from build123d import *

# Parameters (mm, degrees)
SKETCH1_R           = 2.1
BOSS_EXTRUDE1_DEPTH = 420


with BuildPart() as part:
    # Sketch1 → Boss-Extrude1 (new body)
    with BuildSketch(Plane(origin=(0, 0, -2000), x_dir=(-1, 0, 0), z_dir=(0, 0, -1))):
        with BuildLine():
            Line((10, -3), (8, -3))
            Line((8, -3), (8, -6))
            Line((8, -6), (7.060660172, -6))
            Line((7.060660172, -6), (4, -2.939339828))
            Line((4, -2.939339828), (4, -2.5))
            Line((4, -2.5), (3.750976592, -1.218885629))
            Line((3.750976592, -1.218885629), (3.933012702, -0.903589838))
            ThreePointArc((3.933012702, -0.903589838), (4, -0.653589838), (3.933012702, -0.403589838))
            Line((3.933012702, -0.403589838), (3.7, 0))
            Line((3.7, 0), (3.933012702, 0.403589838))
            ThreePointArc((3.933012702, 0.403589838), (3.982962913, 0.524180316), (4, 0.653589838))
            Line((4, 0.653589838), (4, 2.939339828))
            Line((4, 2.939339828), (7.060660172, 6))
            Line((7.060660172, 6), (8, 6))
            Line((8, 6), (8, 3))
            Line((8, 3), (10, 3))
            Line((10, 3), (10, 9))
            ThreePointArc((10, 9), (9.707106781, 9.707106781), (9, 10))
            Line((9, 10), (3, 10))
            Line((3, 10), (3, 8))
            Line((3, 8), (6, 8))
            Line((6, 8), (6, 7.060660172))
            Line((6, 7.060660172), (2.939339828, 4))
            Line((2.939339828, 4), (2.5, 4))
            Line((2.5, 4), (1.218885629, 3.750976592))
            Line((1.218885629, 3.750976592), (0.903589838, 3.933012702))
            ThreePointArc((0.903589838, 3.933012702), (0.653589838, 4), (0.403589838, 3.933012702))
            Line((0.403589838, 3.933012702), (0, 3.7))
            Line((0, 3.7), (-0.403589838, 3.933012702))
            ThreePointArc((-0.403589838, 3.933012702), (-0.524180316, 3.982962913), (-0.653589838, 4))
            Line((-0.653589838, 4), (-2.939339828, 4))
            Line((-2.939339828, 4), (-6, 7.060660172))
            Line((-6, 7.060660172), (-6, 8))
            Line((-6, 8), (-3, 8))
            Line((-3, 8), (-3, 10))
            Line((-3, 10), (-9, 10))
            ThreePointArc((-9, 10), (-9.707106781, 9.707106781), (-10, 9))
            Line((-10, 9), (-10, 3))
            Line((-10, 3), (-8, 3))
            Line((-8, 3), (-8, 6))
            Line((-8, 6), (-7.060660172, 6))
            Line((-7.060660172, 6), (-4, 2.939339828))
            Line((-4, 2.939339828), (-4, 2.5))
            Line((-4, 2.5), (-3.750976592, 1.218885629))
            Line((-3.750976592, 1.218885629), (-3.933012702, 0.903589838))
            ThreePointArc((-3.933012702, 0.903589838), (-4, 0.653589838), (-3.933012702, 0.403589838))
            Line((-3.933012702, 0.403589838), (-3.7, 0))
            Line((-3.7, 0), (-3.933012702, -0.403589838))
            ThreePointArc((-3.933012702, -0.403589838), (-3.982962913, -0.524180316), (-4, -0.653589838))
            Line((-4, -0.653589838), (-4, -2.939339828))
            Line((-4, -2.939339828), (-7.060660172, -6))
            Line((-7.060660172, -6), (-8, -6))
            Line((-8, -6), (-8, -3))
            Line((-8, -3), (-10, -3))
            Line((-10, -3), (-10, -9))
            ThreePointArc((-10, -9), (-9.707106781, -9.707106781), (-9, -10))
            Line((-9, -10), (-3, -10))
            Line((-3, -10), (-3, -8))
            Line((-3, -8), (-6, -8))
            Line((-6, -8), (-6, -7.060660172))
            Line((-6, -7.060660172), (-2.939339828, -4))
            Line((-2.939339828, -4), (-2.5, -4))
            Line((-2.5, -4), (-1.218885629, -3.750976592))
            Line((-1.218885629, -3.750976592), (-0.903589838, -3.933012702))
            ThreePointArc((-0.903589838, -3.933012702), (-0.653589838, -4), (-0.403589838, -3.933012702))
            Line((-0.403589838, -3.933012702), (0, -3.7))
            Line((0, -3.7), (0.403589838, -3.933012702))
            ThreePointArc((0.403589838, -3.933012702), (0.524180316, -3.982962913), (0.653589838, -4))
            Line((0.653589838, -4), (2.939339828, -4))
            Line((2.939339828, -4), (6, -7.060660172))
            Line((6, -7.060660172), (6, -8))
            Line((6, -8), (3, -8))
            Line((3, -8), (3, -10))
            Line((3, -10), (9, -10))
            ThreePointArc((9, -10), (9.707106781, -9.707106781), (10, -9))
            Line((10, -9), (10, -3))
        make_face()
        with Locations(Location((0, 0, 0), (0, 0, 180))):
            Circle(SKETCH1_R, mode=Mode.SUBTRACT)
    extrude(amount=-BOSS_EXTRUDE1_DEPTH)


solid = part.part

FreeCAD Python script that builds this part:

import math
import FreeCAD as App
import Part
import Sketcher
from FreeCAD import Vector
Q = App.Units.Quantity

doc = App.newDocument("Part")
body = doc.addObject("PartDesign::Body", "Body")

# Sketch on XY plane
sketch1 = body.newObject("Sketcher::SketchObject", "Sketch")
sketch1.AttachmentSupport = (doc.getObject("XY_Plane"), [""])
sketch1.MapMode = "FlatFace"
sketch1.AttachmentOffset = App.Placement(Vector(0, 0, -2000), App.Rotation())
sketch1.addGeometry(Part.LineSegment(Vector(-10, -3, 0), Vector(-8, -3, 0)), False)
sketch1.addGeometry(Part.LineSegment(Vector(-8, -3, 0), Vector(-8, -6, 0)), False)
sketch1.addGeometry(Part.LineSegment(Vector(-8, -6, 0), Vector(-7.06, -6, 0)), False)
sketch1.addGeometry(Part.LineSegment(Vector(-7.06, -6, 0), Vector(-4, -2.94, 0)), False)
sketch1.addGeometry(Part.LineSegment(Vector(-4, -2.94, 0), Vector(-4, -2.5, 0)), False)
sketch1.addGeometry(Part.LineSegment(Vector(-4, -2.5, 0), Vector(-3.75, -1.22, 0)), False)
sketch1.addGeometry(Part.LineSegment(Vector(-3.75, -1.22, 0), Vector(-3.93, -0.9, 0)), False)
sketch1.addGeometry(Part.ArcOfCircle(Part.Circle(Vector(-3.5, -0.65, 0), Vector(0, 0, 1), 0.5), math.radians(150), math.radians(210)), False)
sketch1.addGeometry(Part.LineSegment(Vector(-3.93, -0.4, 0), Vector(-3.7, 0, 0)), False)
sketch1.addGeometry(Part.LineSegment(Vector(-3.7, 0, 0), Vector(-3.93, 0.4, 0)), False)
sketch1.addGeometry(Part.ArcOfCircle(Part.Circle(Vector(-3.5, 0.65, 0), Vector(0, 0, 1), 0.5), math.radians(-180), math.radians(-150)), False)
sketch1.addGeometry(Part.LineSegment(Vector(-4, 0.65, 0), Vector(-4, 2.94, 0)), False)
sketch1.addGeometry(Part.LineSegment(Vector(-4, 2.94, 0), Vector(-7.06, 6, 0)), False)
sketch1.addGeometry(Part.LineSegment(Vector(-7.06, 6, 0), Vector(-8, 6, 0)), False)
sketch1.addGeometry(Part.LineSegment(Vector(-8, 6, 0), Vector(-8, 3, 0)), False)
sketch1.addGeometry(Part.LineSegment(Vector(-8, 3, 0), Vector(-10, 3, 0)), False)
sketch1.addGeometry(Part.LineSegment(Vector(-10, 3, 0), Vector(-10, 9, 0)), False)
sketch1.addGeometry(Part.ArcOfCircle(Part.Circle(Vector(-9, 9, 0), Vector(0, 0, 1), 1), math.radians(90), math.radians(180)), False)
sketch1.addGeometry(Part.LineSegment(Vector(-9, 10, 0), Vector(-3, 10, 0)), False)
sketch1.addGeometry(Part.LineSegment(Vector(-3, 10, 0), Vector(-3, 8, 0)), False)
sketch1.addGeometry(Part.LineSegment(Vector(-3, 8, 0), Vector(-6, 8, 0)), False)
sketch1.addGeometry(Part.LineSegment(Vector(-6, 8, 0), Vector(-6, 7.06, 0)), False)
sketch1.addGeometry(Part.LineSegment(Vector(-6, 7.06, 0), Vector(-2.94, 4, 0)), False)
sketch1.addGeometry(Part.LineSegment(Vector(-2.94, 4, 0), Vector(-2.5, 4, 0)), False)
sketch1.addGeometry(Part.LineSegment(Vector(-2.5, 4, 0), Vector(-1.22, 3.75, 0)), False)
sketch1.addGeometry(Part.LineSegment(Vector(-1.22, 3.75, 0), Vector(-0.9, 3.93, 0)), False)
sketch1.addGeometry(Part.ArcOfCircle(Part.Circle(Vector(-0.65, 3.5, 0), Vector(0, 0, 1), 0.5), math.radians(60), math.radians(120)), False)
sketch1.addGeometry(Part.LineSegment(Vector(-0.4, 3.93, 0), Vector(0, 3.7, 0)), False)
sketch1.addGeometry(Part.LineSegment(Vector(0, 3.7, 0), Vector(0.4, 3.93, 0)), False)
sketch1.addGeometry(Part.ArcOfCircle(Part.Circle(Vector(0.65, 3.5, 0), Vector(0, 0, 1), 0.5), math.radians(90), math.radians(120)), False)
sketch1.addGeometry(Part.LineSegment(Vector(0.65, 4, 0), Vector(2.94, 4, 0)), False)
sketch1.addGeometry(Part.LineSegment(Vector(2.94, 4, 0), Vector(6, 7.06, 0)), False)
sketch1.addGeometry(Part.LineSegment(Vector(6, 7.06, 0), Vector(6, 8, 0)), False)
sketch1.addGeometry(Part.LineSegment(Vector(6, 8, 0), Vector(3, 8, 0)), False)
sketch1.addGeometry(Part.LineSegment(Vector(3, 8, 0), Vector(3, 10, 0)), False)
sketch1.addGeometry(Part.LineSegment(Vector(3, 10, 0), Vector(9, 10, 0)), False)
sketch1.addGeometry(Part.ArcOfCircle(Part.Circle(Vector(9, 9, 0), Vector(0, 0, 1), 1), math.radians(0), math.radians(90)), False)
sketch1.addGeometry(Part.LineSegment(Vector(10, 9, 0), Vector(10, 3, 0)), False)
sketch1.addGeometry(Part.LineSegment(Vector(10, 3, 0), Vector(8, 3, 0)), False)
sketch1.addGeometry(Part.LineSegment(Vector(8, 3, 0), Vector(8, 6, 0)), False)
sketch1.addGeometry(Part.LineSegment(Vector(8, 6, 0), Vector(7.06, 6, 0)), False)
sketch1.addGeometry(Part.LineSegment(Vector(7.06, 6, 0), Vector(4, 2.94, 0)), False)
sketch1.addGeometry(Part.LineSegment(Vector(4, 2.94, 0), Vector(4, 2.5, 0)), False)
sketch1.addGeometry(Part.LineSegment(Vector(4, 2.5, 0), Vector(3.75, 1.22, 0)), False)
sketch1.addGeometry(Part.LineSegment(Vector(3.75, 1.22, 0), Vector(3.93, 0.9, 0)), False)
sketch1.addGeometry(Part.ArcOfCircle(Part.Circle(Vector(3.5, 0.65, 0), Vector(0, 0, 1), 0.5), math.radians(-30), math.radians(30)), False)
sketch1.addGeometry(Part.LineSegment(Vector(3.93, 0.4, 0), Vector(3.7, 0, 0)), False)
sketch1.addGeometry(Part.LineSegment(Vector(3.7, 0, 0), Vector(3.93, -0.4, 0)), False)
sketch1.addGeometry(Part.ArcOfCircle(Part.Circle(Vector(3.5, -0.65, 0), Vector(0, 0, 1), 0.5), math.radians(0), math.radians(30)), False)
sketch1.addGeometry(Part.LineSegment(Vector(4, -0.65, 0), Vector(4, -2.94, 0)), False)
sketch1.addGeometry(Part.LineSegment(Vector(4, -2.94, 0), Vector(7.06, -6, 0)), False)
sketch1.addGeometry(Part.LineSegment(Vector(7.06, -6, 0), Vector(8, -6, 0)), False)
sketch1.addGeometry(Part.LineSegment(Vector(8, -6, 0), Vector(8, -3, 0)), False)
sketch1.addGeometry(Part.LineSegment(Vector(8, -3, 0), Vector(10, -3, 0)), False)
sketch1.addGeometry(Part.LineSegment(Vector(10, -3, 0), Vector(10, -9, 0)), False)
sketch1.addGeometry(Part.ArcOfCircle(Part.Circle(Vector(9, -9, 0), Vector(0, 0, 1), 1), math.radians(-90), math.radians(0)), False)
sketch1.addGeometry(Part.LineSegment(Vector(9, -10, 0), Vector(3, -10, 0)), False)
sketch1.addGeometry(Part.LineSegment(Vector(3, -10, 0), Vector(3, -8, 0)), False)
sketch1.addGeometry(Part.LineSegment(Vector(3, -8, 0), Vector(6, -8, 0)), False)
sketch1.addGeometry(Part.LineSegment(Vector(6, -8, 0), Vector(6, -7.06, 0)), False)
sketch1.addGeometry(Part.LineSegment(Vector(6, -7.06, 0), Vector(2.94, -4, 0)), False)
sketch1.addGeometry(Part.LineSegment(Vector(2.94, -4, 0), Vector(2.5, -4, 0)), False)
sketch1.addGeometry(Part.LineSegment(Vector(2.5, -4, 0), Vector(1.22, -3.75, 0)), False)
sketch1.addGeometry(Part.LineSegment(Vector(1.22, -3.75, 0), Vector(0.9, -3.93, 0)), False)
sketch1.addGeometry(Part.ArcOfCircle(Part.Circle(Vector(0.65, -3.5, 0), Vector(0, 0, 1), 0.5), math.radians(-120), math.radians(-60)), False)
sketch1.addGeometry(Part.LineSegment(Vector(0.4, -3.93, 0), Vector(0, -3.7, 0)), False)
sketch1.addGeometry(Part.LineSegment(Vector(0, -3.7, 0), Vector(-0.4, -3.93, 0)), False)
sketch1.addGeometry(Part.ArcOfCircle(Part.Circle(Vector(-0.65, -3.5, 0), Vector(0, 0, 1), 0.5), math.radians(-90), math.radians(-60)), False)
sketch1.addGeometry(Part.LineSegment(Vector(-0.65, -4, 0), Vector(-2.94, -4, 0)), False)
sketch1.addGeometry(Part.LineSegment(Vector(-2.94, -4, 0), Vector(-6, -7.06, 0)), False)
sketch1.addGeometry(Part.LineSegment(Vector(-6, -7.06, 0), Vector(-6, -8, 0)), False)
sketch1.addGeometry(Part.LineSegment(Vector(-6, -8, 0), Vector(-3, -8, 0)), False)
sketch1.addGeometry(Part.LineSegment(Vector(-3, -8, 0), Vector(-3, -10, 0)), False)
sketch1.addGeometry(Part.LineSegment(Vector(-3, -10, 0), Vector(-9, -10, 0)), False)
sketch1.addGeometry(Part.ArcOfCircle(Part.Circle(Vector(-9, -9, 0), Vector(0, 0, 1), 1), math.radians(-180), math.radians(-90)), False)
sketch1.addGeometry(Part.LineSegment(Vector(-10, -9, 0), Vector(-10, -3, 0)), False)
sketch1.addGeometry(Part.Circle(Vector(0, 0, 0), Vector(0, 0, 1), 2.1), False)
sketch1.addConstraint(Sketcher.Constraint("Coincident", 0, 2, 1, 1))
sketch1.addConstraint(Sketcher.Constraint("Coincident", 1, 2, 2, 1))
sketch1.addConstraint(Sketcher.Constraint("Coincident", 2, 2, 3, 1))
sketch1.addConstraint(Sketcher.Constraint("Coincident", 3, 2, 4, 1))
sketch1.addConstraint(Sketcher.Constraint("Coincident", 4, 2, 5, 1))
sketch1.addConstraint(Sketcher.Constraint("Coincident", 5, 2, 6, 1))
sketch1.addConstraint(Sketcher.Constraint("Tangent", 6, 2, 7, 2))
sketch1.addConstraint(Sketcher.Constraint("Tangent", 7, 1, 8, 1))
sketch1.addConstraint(Sketcher.Constraint("Coincident", 8, 2, 9, 1))
sketch1.addConstraint(Sketcher.Constraint("Tangent", 9, 2, 10, 2))
sketch1.addConstraint(Sketcher.Constraint("Tangent", 10, 1, 11, 1))
sketch1.addConstraint(Sketcher.Constraint("Coincident", 11, 2, 12, 1))
sketch1.addConstraint(Sketcher.Constraint("Coincident", 12, 2, 13, 1))
sketch1.addConstraint(Sketcher.Constraint("Coincident", 13, 2, 14, 1))
sketch1.addConstraint(Sketcher.Constraint("Coincident", 14, 2, 15, 1))
sketch1.addConstraint(Sketcher.Constraint("Coincident", 15, 2, 16, 1))
sketch1.addConstraint(Sketcher.Constraint("Tangent", 16, 2, 17, 2))
sketch1.addConstraint(Sketcher.Constraint("Tangent", 17, 1, 18, 1))
sketch1.addConstraint(Sketcher.Constraint("Coincident", 18, 2, 19, 1))
sketch1.addConstraint(Sketcher.Constraint("Coincident", 19, 2, 20, 1))
sketch1.addConstraint(Sketcher.Constraint("Coincident", 20, 2, 21, 1))
sketch1.addConstraint(Sketcher.Constraint("Coincident", 21, 2, 22, 1))
sketch1.addConstraint(Sketcher.Constraint("Coincident", 22, 2, 23, 1))
sketch1.addConstraint(Sketcher.Constraint("Coincident", 23, 2, 24, 1))
sketch1.addConstraint(Sketcher.Constraint("Coincident", 24, 2, 25, 1))
sketch1.addConstraint(Sketcher.Constraint("Tangent", 25, 2, 26, 2))
sketch1.addConstraint(Sketcher.Constraint("Tangent", 26, 1, 27, 1))
sketch1.addConstraint(Sketcher.Constraint("Coincident", 27, 2, 28, 1))
sketch1.addConstraint(Sketcher.Constraint("Tangent", 28, 2, 29, 2))
sketch1.addConstraint(Sketcher.Constraint("Tangent", 29, 1, 30, 1))
sketch1.addConstraint(Sketcher.Constraint("Coincident", 30, 2, 31, 1))
sketch1.addConstraint(Sketcher.Constraint("Coincident", 31, 2, 32, 1))
sketch1.addConstraint(Sketcher.Constraint("Coincident", 32, 2, 33, 1))
sketch1.addConstraint(Sketcher.Constraint("Coincident", 33, 2, 34, 1))
sketch1.addConstraint(Sketcher.Constraint("Coincident", 34, 2, 35, 1))
sketch1.addConstraint(Sketcher.Constraint("Tangent", 35, 2, 36, 2))
sketch1.addConstraint(Sketcher.Constraint("Tangent", 36, 1, 37, 1))
sketch1.addConstraint(Sketcher.Constraint("Coincident", 37, 2, 38, 1))
sketch1.addConstraint(Sketcher.Constraint("Coincident", 38, 2, 39, 1))
sketch1.addConstraint(Sketcher.Constraint("Coincident", 39, 2, 40, 1))
sketch1.addConstraint(Sketcher.Constraint("Coincident", 40, 2, 41, 1))
sketch1.addConstraint(Sketcher.Constraint("Coincident", 41, 2, 42, 1))
sketch1.addConstraint(Sketcher.Constraint("Coincident", 42, 2, 43, 1))
sketch1.addConstraint(Sketcher.Constraint("Coincident", 43, 2, 44, 1))
sketch1.addConstraint(Sketcher.Constraint("Tangent", 44, 2, 45, 2))
sketch1.addConstraint(Sketcher.Constraint("Tangent", 45, 1, 46, 1))
sketch1.addConstraint(Sketcher.Constraint("Coincident", 46, 2, 47, 1))
sketch1.addConstraint(Sketcher.Constraint("Tangent", 47, 2, 48, 2))
sketch1.addConstraint(Sketcher.Constraint("Tangent", 48, 1, 49, 1))
sketch1.addConstraint(Sketcher.Constraint("Coincident", 49, 2, 50, 1))
sketch1.addConstraint(Sketcher.Constraint("Coincident", 50, 2, 51, 1))
sketch1.addConstraint(Sketcher.Constraint("Coincident", 51, 2, 52, 1))
sketch1.addConstraint(Sketcher.Constraint("Coincident", 52, 2, 53, 1))
sketch1.addConstraint(Sketcher.Constraint("Coincident", 53, 2, 54, 1))
sketch1.addConstraint(Sketcher.Constraint("Tangent", 54, 2, 55, 2))
sketch1.addConstraint(Sketcher.Constraint("Tangent", 55, 1, 56, 1))
sketch1.addConstraint(Sketcher.Constraint("Coincident", 56, 2, 57, 1))
sketch1.addConstraint(Sketcher.Constraint("Coincident", 57, 2, 58, 1))
sketch1.addConstraint(Sketcher.Constraint("Coincident", 58, 2, 59, 1))
sketch1.addConstraint(Sketcher.Constraint("Coincident", 59, 2, 60, 1))
sketch1.addConstraint(Sketcher.Constraint("Coincident", 60, 2, 61, 1))
sketch1.addConstraint(Sketcher.Constraint("Coincident", 61, 2, 62, 1))
sketch1.addConstraint(Sketcher.Constraint("Coincident", 62, 2, 63, 1))
sketch1.addConstraint(Sketcher.Constraint("Tangent", 63, 2, 64, 2))
sketch1.addConstraint(Sketcher.Constraint("Tangent", 64, 1, 65, 1))
sketch1.addConstraint(Sketcher.Constraint("Coincident", 65, 2, 66, 1))
sketch1.addConstraint(Sketcher.Constraint("Tangent", 66, 2, 67, 2))
sketch1.addConstraint(Sketcher.Constraint("Tangent", 67, 1, 68, 1))
sketch1.addConstraint(Sketcher.Constraint("Coincident", 68, 2, 69, 1))
sketch1.addConstraint(Sketcher.Constraint("Coincident", 69, 2, 70, 1))
sketch1.addConstraint(Sketcher.Constraint("Coincident", 70, 2, 71, 1))
sketch1.addConstraint(Sketcher.Constraint("Coincident", 71, 2, 72, 1))
sketch1.addConstraint(Sketcher.Constraint("Coincident", 72, 2, 73, 1))
sketch1.addConstraint(Sketcher.Constraint("Tangent", 73, 2, 74, 2))
sketch1.addConstraint(Sketcher.Constraint("Tangent", 74, 1, 75, 1))
sketch1.addConstraint(Sketcher.Constraint("Coincident", 75, 2, 0, 1))
sketch1.addConstraint(Sketcher.Constraint("Horizontal", 0))
sketch1.addConstraint(Sketcher.Constraint("Vertical", 1))
sketch1.addConstraint(Sketcher.Constraint("Horizontal", 2))
sketch1.addConstraint(Sketcher.Constraint("Vertical", 4))
sketch1.addConstraint(Sketcher.Constraint("Vertical", 11))
sketch1.addConstraint(Sketcher.Constraint("Horizontal", 13))
sketch1.addConstraint(Sketcher.Constraint("Vertical", 14))
sketch1.addConstraint(Sketcher.Constraint("Horizontal", 15))
sketch1.addConstraint(Sketcher.Constraint("Vertical", 16))
sketch1.addConstraint(Sketcher.Constraint("Horizontal", 18))
sketch1.addConstraint(Sketcher.Constraint("Vertical", 19))
sketch1.addConstraint(Sketcher.Constraint("Horizontal", 20))
sketch1.addConstraint(Sketcher.Constraint("Vertical", 21))
sketch1.addConstraint(Sketcher.Constraint("Horizontal", 23))
sketch1.addConstraint(Sketcher.Constraint("Horizontal", 30))
sketch1.addConstraint(Sketcher.Constraint("Vertical", 32))
sketch1.addConstraint(Sketcher.Constraint("Horizontal", 33))
sketch1.addConstraint(Sketcher.Constraint("Vertical", 34))
sketch1.addConstraint(Sketcher.Constraint("Horizontal", 35))
sketch1.addConstraint(Sketcher.Constraint("Vertical", 37))
sketch1.addConstraint(Sketcher.Constraint("Horizontal", 38))
sketch1.addConstraint(Sketcher.Constraint("Vertical", 39))
sketch1.addConstraint(Sketcher.Constraint("Horizontal", 40))
sketch1.addConstraint(Sketcher.Constraint("Vertical", 42))
sketch1.addConstraint(Sketcher.Constraint("Vertical", 49))
sketch1.addConstraint(Sketcher.Constraint("Horizontal", 51))
sketch1.addConstraint(Sketcher.Constraint("Vertical", 52))
sketch1.addConstraint(Sketcher.Constraint("Horizontal", 53))
sketch1.addConstraint(Sketcher.Constraint("Vertical", 54))
sketch1.addConstraint(Sketcher.Constraint("Horizontal", 56))
sketch1.addConstraint(Sketcher.Constraint("Vertical", 57))
sketch1.addConstraint(Sketcher.Constraint("Horizontal", 58))
sketch1.addConstraint(Sketcher.Constraint("Vertical", 59))
sketch1.addConstraint(Sketcher.Constraint("Horizontal", 61))
sketch1.addConstraint(Sketcher.Constraint("Horizontal", 68))
sketch1.addConstraint(Sketcher.Constraint("Vertical", 70))
sketch1.addConstraint(Sketcher.Constraint("Horizontal", 71))
sketch1.addConstraint(Sketcher.Constraint("Vertical", 72))
sketch1.addConstraint(Sketcher.Constraint("Horizontal", 73))
sketch1.addConstraint(Sketcher.Constraint("Vertical", 75))
sketch1.addConstraint(Sketcher.Constraint("Coincident", 76, 3, -1, 1))
sketch1.addConstraint(Sketcher.Constraint("Equal", 7, 10))
sketch1.addConstraint(Sketcher.Constraint("Equal", 10, 26))
sketch1.addConstraint(Sketcher.Constraint("Equal", 26, 29))
sketch1.addConstraint(Sketcher.Constraint("Equal", 17, 36))
sketch1.addConstraint(Sketcher.Constraint("Equal", 29, 45))
sketch1.addConstraint(Sketcher.Constraint("Equal", 45, 48))
sketch1.addConstraint(Sketcher.Constraint("Equal", 36, 55))
sketch1.addConstraint(Sketcher.Constraint("Equal", 48, 64))
sketch1.addConstraint(Sketcher.Constraint("Equal", 64, 67))
sketch1.addConstraint(Sketcher.Constraint("Equal", 55, 74))
sketch1.addConstraint(Sketcher.Constraint("Symmetric", 7, 3, 45, 3, -1, 1))
sketch1.addConstraint(Sketcher.Constraint("Symmetric", 10, 3, 48, 3, -1, 1))
sketch1.addConstraint(Sketcher.Constraint("Symmetric", 17, 3, 55, 3, -1, 1))
sketch1.addConstraint(Sketcher.Constraint("Symmetric", 26, 3, 64, 3, -1, 1))
sketch1.addConstraint(Sketcher.Constraint("Symmetric", 29, 3, 67, 3, -1, 1))
sketch1.addConstraint(Sketcher.Constraint("Symmetric", 36, 3, 74, 3, -1, 1))
sketch1.addConstraint(Sketcher.Constraint("Symmetric", 0, 2, 38, 2, -1, 1))
sketch1.addConstraint(Sketcher.Constraint("Symmetric", 2, 2, 40, 2, -1, 1))
sketch1.addConstraint(Sketcher.Constraint("Symmetric", 3, 2, 41, 2, -1, 1))
sketch1.addConstraint(Sketcher.Constraint("Symmetric", 5, 2, 43, 2, -1, 1))
sketch1.addConstraint(Sketcher.Constraint("Symmetric", 8, 2, 46, 2, -1, 1))
sketch1.addConstraint(Sketcher.Constraint("Symmetric", 12, 2, 50, 2, -1, 1))
sketch1.addConstraint(Sketcher.Constraint("Symmetric", 14, 2, 52, 2, -1, 1))
sketch1.addConstraint(Sketcher.Constraint("Symmetric", 19, 2, 57, 2, -1, 1))
sketch1.addConstraint(Sketcher.Constraint("Symmetric", 21, 2, 59, 2, -1, 1))
sketch1.addConstraint(Sketcher.Constraint("Symmetric", 22, 2, 60, 2, -1, 1))
sketch1.addConstraint(Sketcher.Constraint("Symmetric", 24, 2, 62, 2, -1, 1))
sketch1.addConstraint(Sketcher.Constraint("Symmetric", 27, 2, 65, 2, -1, 1))
sketch1.addConstraint(Sketcher.Constraint("Symmetric", 31, 2, 69, 2, -1, 1))
sketch1.addConstraint(Sketcher.Constraint("Symmetric", 33, 2, 71, 2, -1, 1))
sketch1.addConstraint(Sketcher.Constraint("Symmetric", 26, 3, 29, 3, -2))
sketch1.addConstraint(Sketcher.Constraint("Symmetric", 17, 3, 36, 3, -2))
sketch1.addConstraint(Sketcher.Constraint("Symmetric", 10, 3, 45, 3, -2))
sketch1.addConstraint(Sketcher.Constraint("Symmetric", 22, 2, 30, 2, -2))
sketch1.addConstraint(Sketcher.Constraint("Symmetric", 21, 2, 31, 2, -2))
sketch1.addConstraint(Sketcher.Constraint("Symmetric", 19, 2, 33, 2, -2))
sketch1.addConstraint(Sketcher.Constraint("Symmetric", 14, 2, 38, 2, -2))
sketch1.addConstraint(Sketcher.Constraint("Symmetric", 12, 2, 40, 2, -2))
sketch1.addConstraint(Sketcher.Constraint("Symmetric", 11, 2, 41, 2, -2))
sketch1.addConstraint(Sketcher.Constraint("PointOnObject", 8, 2, -1))
sketch1.addConstraint(Sketcher.Constraint("PointOnObject", 27, 2, -2))
sketch1.addConstraint(Sketcher.Constraint("Parallel", 6, 9))
sketch1.addConstraint(Sketcher.Constraint("Perpendicular", 3, 12))
sketch1.addConstraint(Sketcher.Constraint("Parallel", 12, 22))
sketch1.addConstraint(Sketcher.Constraint("Perpendicular", 5, 24))
sketch1.addConstraint(Sketcher.Constraint("Perpendicular", 9, 25))
sketch1.addConstraint(Sketcher.Constraint("Perpendicular", 8, 27))
sketch1.addConstraint(Sketcher.Constraint("Perpendicular", 24, 43))
sketch1.addConstraint(Sketcher.Constraint("Perpendicular", 41, 50))
sketch1.addConstraint(Sketcher.Constraint("Perpendicular", 43, 62))
sketch1.addConstraint(Sketcher.Constraint("Perpendicular", 60, 69))
sketch1.addConstraint(Sketcher.Constraint("Equal", 71, 1))
sketch1.addConstraint(Sketcher.Constraint("Equal", 61, 4))
sketch1.addConstraint(Sketcher.Constraint("Equal", 68, 11))
sketch1.addConstraint(Sketcher.Constraint("Equal", 73, 16))
sketch1.addConstraint(Sketcher.Constraint("Equal", 53, 19))
sketch1.addConstraint(Sketcher.Constraint("Equal", 51, 21))
sketch1.addConstraint(Sketcher.Constraint("Equal", 12, 22))
sketch1.addConstraint(Sketcher.Constraint("Equal", 9, 27))
sketch1.addConstraint(Sketcher.Constraint("Radius", 17, Q("1 mm")))
sketch1.addConstraint(Sketcher.Constraint("Diameter", 76, Q("4.2 mm")))
sketch1.addConstraint(Sketcher.Constraint("Radius", 7, Q("0.5 mm")))
sketch1.addConstraint(Sketcher.Constraint("DistanceX", 0, 1, 0, 2, Q("2 mm")))
sketch1.addConstraint(Sketcher.Constraint("DistanceX", 18, 1, 18, 2, Q("6 mm")))
sketch1.addConstraint(Sketcher.Constraint("DistanceX", 20, 2, 20, 1, Q("3 mm")))
sketch1.addConstraint(Sketcher.Constraint("Angle", 5, Q("79 deg")))
sketch1.addConstraint(Sketcher.Constraint("Angle", 6, Q("120 deg")))
sketch1.addConstraint(Sketcher.Constraint("DistanceX", 17, 3, -1, 1, Q("9 mm")))
sketch1.addConstraint(Sketcher.Constraint("DistanceX", 3, 2, -1, 1, Q("4 mm")))
sketch1.addConstraint(Sketcher.Constraint("DistanceY", 4, 2, -1, 1, Q("2.5 mm")))
sketch1.addConstraint(Sketcher.Constraint("DistanceX", 8, 2, -1, 1, Q("3.7 mm")))
sketch1.addConstraint(Sketcher.Constraint("DistanceX", 2, 1, 2, 2, Q("0.93934 mm")))
pad1 = body.newObject("PartDesign::Pad", "Pad")
pad1.Profile = sketch1
pad1.Length = 420

doc.recompute()
